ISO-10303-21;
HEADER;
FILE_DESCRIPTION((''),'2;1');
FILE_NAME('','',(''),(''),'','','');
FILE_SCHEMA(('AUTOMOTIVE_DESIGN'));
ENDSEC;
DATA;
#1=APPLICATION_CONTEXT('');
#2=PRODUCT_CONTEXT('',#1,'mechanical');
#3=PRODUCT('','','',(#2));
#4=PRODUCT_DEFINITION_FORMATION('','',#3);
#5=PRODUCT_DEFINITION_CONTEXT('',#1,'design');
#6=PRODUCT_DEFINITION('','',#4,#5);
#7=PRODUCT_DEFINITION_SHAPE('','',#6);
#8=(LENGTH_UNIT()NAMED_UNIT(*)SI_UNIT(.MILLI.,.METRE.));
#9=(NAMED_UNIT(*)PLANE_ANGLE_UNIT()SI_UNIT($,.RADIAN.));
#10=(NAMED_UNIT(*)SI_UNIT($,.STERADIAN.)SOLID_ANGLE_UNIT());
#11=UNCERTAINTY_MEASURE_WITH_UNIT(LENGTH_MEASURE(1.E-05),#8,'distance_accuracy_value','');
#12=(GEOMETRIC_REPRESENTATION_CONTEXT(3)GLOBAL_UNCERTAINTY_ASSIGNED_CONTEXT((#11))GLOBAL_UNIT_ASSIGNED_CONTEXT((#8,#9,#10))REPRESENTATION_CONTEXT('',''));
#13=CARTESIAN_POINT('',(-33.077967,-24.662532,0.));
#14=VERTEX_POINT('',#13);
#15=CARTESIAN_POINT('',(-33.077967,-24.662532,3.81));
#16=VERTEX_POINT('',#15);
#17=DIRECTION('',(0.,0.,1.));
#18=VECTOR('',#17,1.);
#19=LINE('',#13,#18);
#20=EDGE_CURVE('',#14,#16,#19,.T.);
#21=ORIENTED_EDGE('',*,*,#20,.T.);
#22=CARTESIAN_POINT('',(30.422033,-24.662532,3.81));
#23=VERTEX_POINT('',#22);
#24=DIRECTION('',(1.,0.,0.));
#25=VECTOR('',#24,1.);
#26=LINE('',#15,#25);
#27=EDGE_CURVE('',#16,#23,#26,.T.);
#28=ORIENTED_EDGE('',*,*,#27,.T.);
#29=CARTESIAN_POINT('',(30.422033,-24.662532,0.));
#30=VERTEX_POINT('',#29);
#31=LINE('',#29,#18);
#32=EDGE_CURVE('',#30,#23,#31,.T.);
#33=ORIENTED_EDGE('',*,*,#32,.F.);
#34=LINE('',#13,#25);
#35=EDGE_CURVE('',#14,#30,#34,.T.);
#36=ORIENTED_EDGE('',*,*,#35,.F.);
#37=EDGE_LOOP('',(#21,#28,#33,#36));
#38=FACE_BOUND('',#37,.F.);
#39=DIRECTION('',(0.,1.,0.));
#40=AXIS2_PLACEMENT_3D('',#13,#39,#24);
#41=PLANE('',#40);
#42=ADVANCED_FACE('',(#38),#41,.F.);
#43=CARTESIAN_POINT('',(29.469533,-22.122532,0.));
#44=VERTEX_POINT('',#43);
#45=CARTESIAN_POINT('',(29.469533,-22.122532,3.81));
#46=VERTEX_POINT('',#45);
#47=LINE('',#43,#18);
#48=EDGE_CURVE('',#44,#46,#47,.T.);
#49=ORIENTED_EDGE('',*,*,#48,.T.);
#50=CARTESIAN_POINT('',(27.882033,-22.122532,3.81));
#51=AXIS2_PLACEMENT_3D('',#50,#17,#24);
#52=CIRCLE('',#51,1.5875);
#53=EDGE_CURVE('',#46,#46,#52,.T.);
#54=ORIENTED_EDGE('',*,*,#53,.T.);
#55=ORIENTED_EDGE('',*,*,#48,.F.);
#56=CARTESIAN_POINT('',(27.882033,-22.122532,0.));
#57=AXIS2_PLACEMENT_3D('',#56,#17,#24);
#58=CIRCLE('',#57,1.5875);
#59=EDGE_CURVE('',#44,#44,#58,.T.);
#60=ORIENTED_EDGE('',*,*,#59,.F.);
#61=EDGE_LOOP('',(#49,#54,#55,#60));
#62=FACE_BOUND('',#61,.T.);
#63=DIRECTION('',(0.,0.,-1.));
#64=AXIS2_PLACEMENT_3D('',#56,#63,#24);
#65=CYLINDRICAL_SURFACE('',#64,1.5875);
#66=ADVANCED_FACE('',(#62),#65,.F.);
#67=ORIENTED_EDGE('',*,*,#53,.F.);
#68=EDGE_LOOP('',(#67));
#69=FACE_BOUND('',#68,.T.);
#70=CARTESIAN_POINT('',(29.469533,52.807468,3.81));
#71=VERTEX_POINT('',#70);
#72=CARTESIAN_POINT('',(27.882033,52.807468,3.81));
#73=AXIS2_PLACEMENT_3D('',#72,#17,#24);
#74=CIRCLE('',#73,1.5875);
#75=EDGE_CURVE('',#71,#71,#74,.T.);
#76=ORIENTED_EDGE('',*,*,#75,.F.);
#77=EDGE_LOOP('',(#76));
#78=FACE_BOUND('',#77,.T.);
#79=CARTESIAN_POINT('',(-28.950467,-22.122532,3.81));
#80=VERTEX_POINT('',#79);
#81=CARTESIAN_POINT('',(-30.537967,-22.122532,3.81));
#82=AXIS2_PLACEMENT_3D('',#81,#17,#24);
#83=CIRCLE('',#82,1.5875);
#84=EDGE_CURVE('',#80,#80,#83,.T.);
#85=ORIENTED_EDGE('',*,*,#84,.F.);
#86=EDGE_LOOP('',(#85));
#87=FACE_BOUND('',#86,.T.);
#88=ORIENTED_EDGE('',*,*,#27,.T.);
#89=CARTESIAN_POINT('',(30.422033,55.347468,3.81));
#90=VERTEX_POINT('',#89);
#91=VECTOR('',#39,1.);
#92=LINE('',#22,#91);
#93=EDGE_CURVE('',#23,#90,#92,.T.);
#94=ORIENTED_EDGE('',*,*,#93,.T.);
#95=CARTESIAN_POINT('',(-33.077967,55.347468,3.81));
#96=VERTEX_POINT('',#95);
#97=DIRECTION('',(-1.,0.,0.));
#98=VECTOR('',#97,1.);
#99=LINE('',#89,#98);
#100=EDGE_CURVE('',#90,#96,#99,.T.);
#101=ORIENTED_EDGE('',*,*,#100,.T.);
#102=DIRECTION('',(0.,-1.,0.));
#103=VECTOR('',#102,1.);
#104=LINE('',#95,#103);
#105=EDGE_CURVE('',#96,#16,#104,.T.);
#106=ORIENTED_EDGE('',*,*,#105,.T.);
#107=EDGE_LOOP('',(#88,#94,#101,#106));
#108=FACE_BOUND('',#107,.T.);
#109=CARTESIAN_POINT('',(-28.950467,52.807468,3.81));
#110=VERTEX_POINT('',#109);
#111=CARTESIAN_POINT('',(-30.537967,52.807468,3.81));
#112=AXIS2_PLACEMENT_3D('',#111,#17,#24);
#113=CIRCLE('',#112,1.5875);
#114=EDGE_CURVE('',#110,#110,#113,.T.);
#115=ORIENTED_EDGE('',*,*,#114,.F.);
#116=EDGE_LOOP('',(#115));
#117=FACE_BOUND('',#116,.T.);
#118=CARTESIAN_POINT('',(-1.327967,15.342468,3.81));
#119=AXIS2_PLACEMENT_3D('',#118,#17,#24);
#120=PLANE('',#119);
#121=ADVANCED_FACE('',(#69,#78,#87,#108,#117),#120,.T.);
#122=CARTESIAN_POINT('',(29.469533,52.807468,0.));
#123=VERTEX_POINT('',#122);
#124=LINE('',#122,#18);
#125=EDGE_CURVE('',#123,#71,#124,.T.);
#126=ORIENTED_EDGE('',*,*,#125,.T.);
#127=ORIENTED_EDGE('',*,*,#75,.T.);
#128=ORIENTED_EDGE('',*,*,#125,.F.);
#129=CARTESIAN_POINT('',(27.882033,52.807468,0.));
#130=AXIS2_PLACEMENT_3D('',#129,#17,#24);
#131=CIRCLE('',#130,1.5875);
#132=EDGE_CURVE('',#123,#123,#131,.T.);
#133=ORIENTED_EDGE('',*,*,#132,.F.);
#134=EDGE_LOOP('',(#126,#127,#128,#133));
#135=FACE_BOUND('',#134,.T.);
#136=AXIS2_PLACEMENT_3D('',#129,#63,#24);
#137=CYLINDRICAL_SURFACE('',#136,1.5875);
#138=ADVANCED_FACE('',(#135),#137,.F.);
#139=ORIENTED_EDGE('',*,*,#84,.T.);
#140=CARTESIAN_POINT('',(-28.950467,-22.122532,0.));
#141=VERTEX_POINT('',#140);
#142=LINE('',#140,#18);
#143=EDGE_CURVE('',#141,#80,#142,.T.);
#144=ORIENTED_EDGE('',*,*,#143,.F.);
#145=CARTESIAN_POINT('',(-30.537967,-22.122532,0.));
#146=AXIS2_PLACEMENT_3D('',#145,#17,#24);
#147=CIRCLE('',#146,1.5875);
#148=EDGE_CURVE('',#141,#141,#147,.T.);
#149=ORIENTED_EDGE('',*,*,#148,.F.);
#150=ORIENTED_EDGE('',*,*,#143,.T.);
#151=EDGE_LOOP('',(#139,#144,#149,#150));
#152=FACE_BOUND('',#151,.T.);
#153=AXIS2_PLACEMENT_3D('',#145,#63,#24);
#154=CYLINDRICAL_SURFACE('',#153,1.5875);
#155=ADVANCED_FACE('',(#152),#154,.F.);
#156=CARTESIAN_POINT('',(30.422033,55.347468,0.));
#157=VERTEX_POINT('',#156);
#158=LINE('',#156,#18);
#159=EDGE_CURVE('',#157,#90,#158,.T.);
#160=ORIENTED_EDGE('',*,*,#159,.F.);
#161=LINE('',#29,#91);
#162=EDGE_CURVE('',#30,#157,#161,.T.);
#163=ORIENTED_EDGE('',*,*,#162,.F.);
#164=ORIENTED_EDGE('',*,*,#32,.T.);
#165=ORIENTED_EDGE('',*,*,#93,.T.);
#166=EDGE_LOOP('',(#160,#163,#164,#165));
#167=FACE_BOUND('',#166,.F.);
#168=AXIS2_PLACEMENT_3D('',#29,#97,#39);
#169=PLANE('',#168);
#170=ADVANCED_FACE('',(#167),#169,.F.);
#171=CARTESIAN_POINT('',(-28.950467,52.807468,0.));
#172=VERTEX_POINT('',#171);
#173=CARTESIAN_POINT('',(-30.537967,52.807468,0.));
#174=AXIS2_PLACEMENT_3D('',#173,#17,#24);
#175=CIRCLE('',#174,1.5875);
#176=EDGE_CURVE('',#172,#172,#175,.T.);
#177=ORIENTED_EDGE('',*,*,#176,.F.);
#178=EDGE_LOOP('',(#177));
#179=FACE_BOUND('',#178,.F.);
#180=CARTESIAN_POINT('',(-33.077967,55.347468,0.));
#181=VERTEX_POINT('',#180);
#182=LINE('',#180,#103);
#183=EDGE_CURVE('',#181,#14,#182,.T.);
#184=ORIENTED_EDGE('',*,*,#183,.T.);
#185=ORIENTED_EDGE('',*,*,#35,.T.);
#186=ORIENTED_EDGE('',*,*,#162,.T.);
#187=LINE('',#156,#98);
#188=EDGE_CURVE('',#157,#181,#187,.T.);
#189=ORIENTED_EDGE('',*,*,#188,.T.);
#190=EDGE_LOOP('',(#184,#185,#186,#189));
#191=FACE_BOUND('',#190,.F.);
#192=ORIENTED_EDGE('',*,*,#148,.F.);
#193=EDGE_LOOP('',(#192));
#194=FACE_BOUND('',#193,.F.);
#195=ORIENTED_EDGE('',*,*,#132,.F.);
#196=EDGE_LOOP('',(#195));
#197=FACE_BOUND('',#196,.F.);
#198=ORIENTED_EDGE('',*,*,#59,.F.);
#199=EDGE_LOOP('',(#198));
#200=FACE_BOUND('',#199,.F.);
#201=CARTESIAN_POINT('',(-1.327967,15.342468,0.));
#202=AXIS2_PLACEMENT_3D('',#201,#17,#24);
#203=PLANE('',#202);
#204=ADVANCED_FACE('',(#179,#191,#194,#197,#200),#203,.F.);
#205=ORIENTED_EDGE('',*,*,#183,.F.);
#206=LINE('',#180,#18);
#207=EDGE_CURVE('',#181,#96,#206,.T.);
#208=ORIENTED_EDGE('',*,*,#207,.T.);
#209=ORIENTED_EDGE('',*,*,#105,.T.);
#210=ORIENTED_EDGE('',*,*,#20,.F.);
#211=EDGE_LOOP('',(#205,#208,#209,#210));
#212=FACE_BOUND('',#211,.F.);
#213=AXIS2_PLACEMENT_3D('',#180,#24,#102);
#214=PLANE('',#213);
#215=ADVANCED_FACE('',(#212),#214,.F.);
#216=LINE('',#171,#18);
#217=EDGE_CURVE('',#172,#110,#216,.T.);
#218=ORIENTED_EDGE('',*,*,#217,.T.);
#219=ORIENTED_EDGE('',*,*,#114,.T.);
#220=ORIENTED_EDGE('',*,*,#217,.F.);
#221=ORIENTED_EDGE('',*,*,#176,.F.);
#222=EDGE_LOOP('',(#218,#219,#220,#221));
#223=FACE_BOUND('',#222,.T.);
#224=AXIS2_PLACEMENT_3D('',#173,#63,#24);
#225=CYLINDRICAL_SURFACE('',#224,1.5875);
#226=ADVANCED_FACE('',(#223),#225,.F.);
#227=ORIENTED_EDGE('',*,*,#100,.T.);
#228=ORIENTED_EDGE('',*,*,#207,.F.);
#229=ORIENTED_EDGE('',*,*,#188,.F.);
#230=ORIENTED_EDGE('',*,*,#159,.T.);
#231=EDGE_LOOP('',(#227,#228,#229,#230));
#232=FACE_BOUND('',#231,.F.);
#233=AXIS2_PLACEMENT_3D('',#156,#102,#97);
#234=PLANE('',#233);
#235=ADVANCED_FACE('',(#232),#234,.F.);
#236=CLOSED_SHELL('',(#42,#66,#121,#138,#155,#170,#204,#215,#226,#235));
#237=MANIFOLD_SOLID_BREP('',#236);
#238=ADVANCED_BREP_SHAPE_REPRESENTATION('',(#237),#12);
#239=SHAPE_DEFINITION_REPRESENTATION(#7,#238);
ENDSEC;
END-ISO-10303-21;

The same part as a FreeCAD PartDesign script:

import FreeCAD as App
import Part
import Sketcher

V = App.Vector
Q = App.Units.Quantity

doc = App.newDocument("Part")
body = doc.addObject("PartDesign::Body", "Body")

# Sketch on XY plane
sketch1 = body.newObject("Sketcher::SketchObject", "Sketch")
sketch1.AttachmentSupport = (doc.getObject("XY_Plane"), [""])
sketch1.MapMode = "FlatFace"
sketch1.addGeometry([
    Part.LineSegment(V(-33.1, 55.3, 0), V(-33.1, -24.7, 0)),  # 0
    Part.LineSegment(V(-33.1, -24.7, 0), V(30.4, -24.7, 0)),  # 1
    Part.LineSegment(V(30.4, -24.7, 0), V(30.4, 55.3, 0)),  # 2
    Part.LineSegment(V(30.4, 55.3, 0), V(-33.1, 55.3, 0)),  # 3
    Part.Circle(V(-30.5, -22.1, 0), V(0, 0, 1), 1.6),  # 4
    Part.Circle(V(27.9, -22.1, 0), V(0, 0, 1), 1.6),  # 5
    Part.Circle(V(-30.5, 52.8, 0), V(0, 0, 1), 1.6),  # 6
    Part.Circle(V(27.9, 52.8, 0), V(0, 0, 1), 1.6),  # 7
], False)
sketch1.addConstraint([
    Sketcher.Constraint("Coincident", 0, 2, 1, 1),
    Sketcher.Constraint("Coincident", 1, 2, 2, 1),
    Sketcher.Constraint("Coincident", 2, 2, 3, 1),
    Sketcher.Constraint("Coincident", 3, 2, 0, 1),
    Sketcher.Constraint("Vertical", 0),
    Sketcher.Constraint("Horizontal", 1),
    Sketcher.Constraint("Vertical", 2),
    Sketcher.Constraint("Horizontal", 3),
    Sketcher.Constraint("Equal", 4, 5),
    Sketcher.Constraint("Equal", 5, 6),
    Sketcher.Constraint("Equal", 6, 7),
    Sketcher.Constraint("Horizontal", 4, 3, 5, 3),
    Sketcher.Constraint("Horizontal", 6, 3, 7, 3),
    Sketcher.Constraint("Vertical", 4, 3, 6, 3),
    Sketcher.Constraint("Vertical", 5, 3, 7, 3),
    Sketcher.Constraint("Diameter", 4, Q("0.125 in")),
    Sketcher.Constraint("DistanceX", 1, 1, 1, 2, Q("2.5 in")),
    Sketcher.Constraint("DistanceY", 0, 2, 0, 1, Q("3.15 in")),
    Sketcher.Constraint("DistanceX", 4, 3, 5, 3, Q("2.3 in")),
    Sketcher.Constraint("DistanceX", 0, 2, 4, 3, Q("0.1 in")),
    Sketcher.Constraint("DistanceY", 0, 2, 4, 3, Q("0.1 in")),
    Sketcher.Constraint("DistanceY", 7, 3, 2, 2, Q("0.1 in")),
    Sketcher.Constraint("DistanceY", 4, 3, -1, 1, 22.122532),
    Sketcher.Constraint("DistanceX", 4, 3, -1, 1, 30.537967),
])
pad1 = body.newObject("PartDesign::Pad", "Pad")
pad1.Profile = sketch1
pad1.Length = Q("0.15 in")

doc.recompute()
